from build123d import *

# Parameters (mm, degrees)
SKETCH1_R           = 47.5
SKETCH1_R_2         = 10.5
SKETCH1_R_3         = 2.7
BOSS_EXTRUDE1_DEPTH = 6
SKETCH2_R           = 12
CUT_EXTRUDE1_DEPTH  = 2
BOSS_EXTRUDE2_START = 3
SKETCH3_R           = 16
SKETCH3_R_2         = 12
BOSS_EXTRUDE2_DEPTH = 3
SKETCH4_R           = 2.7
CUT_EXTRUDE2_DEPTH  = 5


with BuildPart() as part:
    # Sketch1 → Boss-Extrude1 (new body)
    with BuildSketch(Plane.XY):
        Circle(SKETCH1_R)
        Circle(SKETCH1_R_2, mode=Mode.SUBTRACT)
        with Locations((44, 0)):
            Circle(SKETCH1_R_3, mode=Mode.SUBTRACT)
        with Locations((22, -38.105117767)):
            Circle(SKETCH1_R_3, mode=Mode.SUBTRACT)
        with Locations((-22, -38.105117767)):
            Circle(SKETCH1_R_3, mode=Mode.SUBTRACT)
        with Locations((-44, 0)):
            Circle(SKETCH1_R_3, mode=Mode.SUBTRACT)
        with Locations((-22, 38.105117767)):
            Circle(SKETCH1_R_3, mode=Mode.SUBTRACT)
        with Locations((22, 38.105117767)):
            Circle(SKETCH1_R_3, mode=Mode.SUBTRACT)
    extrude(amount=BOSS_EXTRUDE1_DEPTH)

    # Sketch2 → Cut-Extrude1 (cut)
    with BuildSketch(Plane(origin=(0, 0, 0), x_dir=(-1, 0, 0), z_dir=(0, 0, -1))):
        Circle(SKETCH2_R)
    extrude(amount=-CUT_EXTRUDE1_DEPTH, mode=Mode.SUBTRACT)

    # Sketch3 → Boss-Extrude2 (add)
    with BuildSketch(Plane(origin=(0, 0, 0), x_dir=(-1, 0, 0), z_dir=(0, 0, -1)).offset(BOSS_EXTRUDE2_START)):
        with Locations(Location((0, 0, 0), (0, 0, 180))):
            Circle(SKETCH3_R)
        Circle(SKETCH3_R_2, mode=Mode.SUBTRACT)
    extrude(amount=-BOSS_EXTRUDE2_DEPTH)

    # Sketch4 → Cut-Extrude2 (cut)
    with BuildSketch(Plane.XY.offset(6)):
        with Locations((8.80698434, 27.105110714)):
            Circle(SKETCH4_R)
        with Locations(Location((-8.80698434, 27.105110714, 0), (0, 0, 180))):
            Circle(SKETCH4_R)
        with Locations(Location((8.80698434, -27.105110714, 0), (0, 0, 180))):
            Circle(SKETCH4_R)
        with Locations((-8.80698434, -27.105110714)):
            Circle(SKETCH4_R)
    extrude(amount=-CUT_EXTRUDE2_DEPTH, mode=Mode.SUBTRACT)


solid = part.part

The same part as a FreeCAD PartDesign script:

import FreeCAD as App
import Part
import Sketcher
from FreeCAD import Vector
Q = App.Units.Quantity

doc = App.newDocument("Part")
params = doc.addObject("Spreadsheet::Sheet", "Params")
for row, (alias, value) in enumerate([
    ("sketch1_diameter", "95 mm"),
    ("sketch1_diameter2", "21 mm"),
    ("sketch1_diameter3", "5.4 mm"),
    ("pad1_length", "6 mm"),
    ("sketch2_diameter", "24 mm"),
    ("pocket1_length", "2 mm"),
    ("sketch3_diameter", "32 mm"),
    ("sketch3_diameter2", "24 mm"),
    ("pad2_length", "3 mm"),
    ("sketch4_diameter", "5.4 mm"),
    ("pocket2_length", "5 mm"),
], start=1):
    params.set(f"A{row}", alias)
    params.set(f"B{row}", "=" + value)
    params.setAlias(f"B{row}", alias)

body = doc.addObject("PartDesign::Body", "Body")

# Sketch on XY plane
sketch1 = body.newObject("Sketcher::SketchObject", "Sketch")
sketch1.AttachmentSupport = (doc.getObject("XY_Plane"), [""])
sketch1.MapMode = "FlatFace"
sketch1.addGeometry(Part.Circle(Vector(0, 0, 0), Vector(0, 0, 1), 47.5), False)
sketch1.addGeometry(Part.Circle(Vector(-22, -38.1, 0), Vector(0, 0, 1), 2.7), False)
sketch1.addGeometry(Part.Circle(Vector(22, -38.1, 0), Vector(0, 0, 1), 2.7), False)
sketch1.addGeometry(Part.Circle(Vector(-44, 0, 0), Vector(0, 0, 1), 2.7), False)
sketch1.addGeometry(Part.Circle(Vector(-22, 38.1, 0), Vector(0, 0, 1), 2.7), False)
sketch1.addGeometry(Part.Circle(Vector(0, 0, 0), Vector(0, 0, 1), 10.5), False)
sketch1.addGeometry(Part.Circle(Vector(44, 0, 0), Vector(0, 0, 1), 2.7), False)
sketch1.addGeometry(Part.Circle(Vector(22, 38.1, 0), Vector(0, 0, 1), 2.7), False)
sketch1.addConstraint(Sketcher.Constraint("Coincident", 0, 3, -1, 1))
sketch1.addConstraint(Sketcher.Constraint("Coincident", 5, 3, -1, 1))
sketch1.addConstraint(Sketcher.Constraint("Equal", 1, 2))
sketch1.addConstraint(Sketcher.Constraint("Equal", 2, 3))
sketch1.addConstraint(Sketcher.Constraint("Equal", 3, 4))
sketch1.addConstraint(Sketcher.Constraint("Equal", 4, 6))
sketch1.addConstraint(Sketcher.Constraint("Equal", 6, 7))
sketch1.addConstraint(Sketcher.Constraint("Symmetric", 2, 3, 4, 3, -1, 1))
sketch1.addConstraint(Sketcher.Constraint("Symmetric", 3, 3, 6, 3, -1, 1))
sketch1.addConstraint(Sketcher.Constraint("Symmetric", 1, 3, 7, 3, -1, 1))
sketch1.addConstraint(Sketcher.Constraint("Symmetric", 1, 3, 2, 3, -2))
sketch1.addConstraint(Sketcher.Constraint("PointOnObject", 3, 3, -1))
sketch1.addConstraint(Sketcher.Constraint("Diameter", 0, Q("95 mm")))
sketch1.addConstraint(Sketcher.Constraint("Diameter", 5, Q("21 mm")))
sketch1.addConstraint(Sketcher.Constraint("Diameter", 1, Q("5.4 mm")))
sketch1.addConstraint(Sketcher.Constraint("DistanceX", 1, 3, -1, 1, Q("22 mm")))
sketch1.addConstraint(Sketcher.Constraint("DistanceX", 3, 3, -1, 1, Q("44 mm")))
sketch1.addConstraint(Sketcher.Constraint("DistanceY", 1, 3, -1, 1, Q("38.105118 mm")))
sketch1.setExpression("Constraints[12]", "Params.sketch1_diameter")
sketch1.setExpression("Constraints[13]", "Params.sketch1_diameter2")
sketch1.setExpression("Constraints[14]", "Params.sketch1_diameter3")
pad1 = body.newObject("PartDesign::Pad", "Pad")
pad1.Profile = sketch1
pad1.setExpression("Length", "Params.pad1_length")

# Sketch on XY plane
sketch2 = body.newObject("Sketcher::SketchObject", "Sketch001")
sketch2.AttachmentSupport = (doc.getObject("XY_Plane"), [""])
sketch2.MapMode = "FlatFace"
sketch2.addGeometry(Part.Circle(Vector(0, 0, 0), Vector(0, 0, 1), 12), False)
sketch2.addConstraint(Sketcher.Constraint("Coincident", 0, 3, -1, 1))
sketch2.addConstraint(Sketcher.Constraint("Diameter", 0, Q("24 mm")))
sketch2.setExpression("Constraints[1]", "Params.sketch2_diameter")
pocket1 = body.newObject("PartDesign::Pocket", "Pocket")
pocket1.Profile = sketch2
pocket1.setExpression("Length", "Params.pocket1_length")
pocket1.Reversed = True

# Sketch on XY plane
sketch3 = body.newObject("Sketcher::SketchObject", "Sketch002")
sketch3.AttachmentSupport = (doc.getObject("XY_Plane"), [""])
sketch3.MapMode = "FlatFace"
sketch3.AttachmentOffset = App.Placement(Vector(0, 0, -3), App.Rotation())
sketch3.addGeometry(Part.Circle(Vector(0, 0, 0), Vector(0, 0, 1), 16), False)
sketch3.addGeometry(Part.Circle(Vector(0, 0, 0), Vector(0, 0, 1), 12), False)
sketch3.addConstraint(Sketcher.Constraint("Coincident", 0, 3, -1, 1))
sketch3.addConstraint(Sketcher.Constraint("Coincident", 1, 3, -1, 1))
sketch3.addConstraint(Sketcher.Constraint("Diameter", 0, Q("32 mm")))
sketch3.addConstraint(Sketcher.Constraint("Diameter", 1, Q("24 mm")))
sketch3.setExpression("Constraints[2]", "Params.sketch3_diameter")
sketch3.setExpression("Constraints[3]", "Params.sketch3_diameter2")
pad2 = body.newObject("PartDesign::Pad", "Pad001")
pad2.Profile = sketch3
pad2.setExpression("Length", "Params.pad2_length")

# Sketch on XY plane
sketch4 = body.newObject("Sketcher::SketchObject", "Sketch003")
sketch4.AttachmentSupport = (doc.getObject("XY_Plane"), [""])
sketch4.MapMode = "FlatFace"
sketch4.AttachmentOffset = App.Placement(Vector(0, 0, 6), App.Rotation())
sketch4.addGeometry(Part.Circle(Vector(8.8, 27.1, 0), Vector(0, 0, 1), 2.7), False)
sketch4.addGeometry(Part.Circle(Vector(-8.8, 27.1, 0), Vector(0, 0, 1), 2.7), False)
sketch4.addGeometry(Part.Circle(Vector(8.8, -27.1, 0), Vector(0, 0, 1), 2.7), False)
sketch4.addGeometry(Part.Circle(Vector(-8.8, -27.1, 0), Vector(0, 0, 1), 2.7), False)
sketch4.addConstraint(Sketcher.Constraint("Equal", 0, 1))
sketch4.addConstraint(Sketcher.Constraint("Equal", 1, 2))
sketch4.addConstraint(Sketcher.Constraint("Equal", 2, 3))
sketch4.addConstraint(Sketcher.Constraint("Symmetric", 1, 3, 2, 3, -1, 1))
sketch4.addConstraint(Sketcher.Constraint("Symmetric", 0, 3, 3, 3, -1, 1))
sketch4.addConstraint(Sketcher.Constraint("Symmetric", 0, 3, 1, 3, -2))
sketch4.addConstraint(Sketcher.Constraint("Diameter", 0, Q("5.4 mm")))
sketch4.addConstraint(Sketcher.Constraint("DistanceY", -1, 1, 0, 3, Q("27.105111 mm")))
sketch4.addConstraint(Sketcher.Constraint("DistanceX", 1, 3, 0, 3, Q("17.613969 mm")))
sketch4.setExpression("Constraints[6]", "Params.sketch4_diameter")
pocket2 = body.newObject("PartDesign::Pocket", "Pocket001")
pocket2.Profile = sketch4
pocket2.setExpression("Length", "Params.pocket2_length")

doc.recompute()
